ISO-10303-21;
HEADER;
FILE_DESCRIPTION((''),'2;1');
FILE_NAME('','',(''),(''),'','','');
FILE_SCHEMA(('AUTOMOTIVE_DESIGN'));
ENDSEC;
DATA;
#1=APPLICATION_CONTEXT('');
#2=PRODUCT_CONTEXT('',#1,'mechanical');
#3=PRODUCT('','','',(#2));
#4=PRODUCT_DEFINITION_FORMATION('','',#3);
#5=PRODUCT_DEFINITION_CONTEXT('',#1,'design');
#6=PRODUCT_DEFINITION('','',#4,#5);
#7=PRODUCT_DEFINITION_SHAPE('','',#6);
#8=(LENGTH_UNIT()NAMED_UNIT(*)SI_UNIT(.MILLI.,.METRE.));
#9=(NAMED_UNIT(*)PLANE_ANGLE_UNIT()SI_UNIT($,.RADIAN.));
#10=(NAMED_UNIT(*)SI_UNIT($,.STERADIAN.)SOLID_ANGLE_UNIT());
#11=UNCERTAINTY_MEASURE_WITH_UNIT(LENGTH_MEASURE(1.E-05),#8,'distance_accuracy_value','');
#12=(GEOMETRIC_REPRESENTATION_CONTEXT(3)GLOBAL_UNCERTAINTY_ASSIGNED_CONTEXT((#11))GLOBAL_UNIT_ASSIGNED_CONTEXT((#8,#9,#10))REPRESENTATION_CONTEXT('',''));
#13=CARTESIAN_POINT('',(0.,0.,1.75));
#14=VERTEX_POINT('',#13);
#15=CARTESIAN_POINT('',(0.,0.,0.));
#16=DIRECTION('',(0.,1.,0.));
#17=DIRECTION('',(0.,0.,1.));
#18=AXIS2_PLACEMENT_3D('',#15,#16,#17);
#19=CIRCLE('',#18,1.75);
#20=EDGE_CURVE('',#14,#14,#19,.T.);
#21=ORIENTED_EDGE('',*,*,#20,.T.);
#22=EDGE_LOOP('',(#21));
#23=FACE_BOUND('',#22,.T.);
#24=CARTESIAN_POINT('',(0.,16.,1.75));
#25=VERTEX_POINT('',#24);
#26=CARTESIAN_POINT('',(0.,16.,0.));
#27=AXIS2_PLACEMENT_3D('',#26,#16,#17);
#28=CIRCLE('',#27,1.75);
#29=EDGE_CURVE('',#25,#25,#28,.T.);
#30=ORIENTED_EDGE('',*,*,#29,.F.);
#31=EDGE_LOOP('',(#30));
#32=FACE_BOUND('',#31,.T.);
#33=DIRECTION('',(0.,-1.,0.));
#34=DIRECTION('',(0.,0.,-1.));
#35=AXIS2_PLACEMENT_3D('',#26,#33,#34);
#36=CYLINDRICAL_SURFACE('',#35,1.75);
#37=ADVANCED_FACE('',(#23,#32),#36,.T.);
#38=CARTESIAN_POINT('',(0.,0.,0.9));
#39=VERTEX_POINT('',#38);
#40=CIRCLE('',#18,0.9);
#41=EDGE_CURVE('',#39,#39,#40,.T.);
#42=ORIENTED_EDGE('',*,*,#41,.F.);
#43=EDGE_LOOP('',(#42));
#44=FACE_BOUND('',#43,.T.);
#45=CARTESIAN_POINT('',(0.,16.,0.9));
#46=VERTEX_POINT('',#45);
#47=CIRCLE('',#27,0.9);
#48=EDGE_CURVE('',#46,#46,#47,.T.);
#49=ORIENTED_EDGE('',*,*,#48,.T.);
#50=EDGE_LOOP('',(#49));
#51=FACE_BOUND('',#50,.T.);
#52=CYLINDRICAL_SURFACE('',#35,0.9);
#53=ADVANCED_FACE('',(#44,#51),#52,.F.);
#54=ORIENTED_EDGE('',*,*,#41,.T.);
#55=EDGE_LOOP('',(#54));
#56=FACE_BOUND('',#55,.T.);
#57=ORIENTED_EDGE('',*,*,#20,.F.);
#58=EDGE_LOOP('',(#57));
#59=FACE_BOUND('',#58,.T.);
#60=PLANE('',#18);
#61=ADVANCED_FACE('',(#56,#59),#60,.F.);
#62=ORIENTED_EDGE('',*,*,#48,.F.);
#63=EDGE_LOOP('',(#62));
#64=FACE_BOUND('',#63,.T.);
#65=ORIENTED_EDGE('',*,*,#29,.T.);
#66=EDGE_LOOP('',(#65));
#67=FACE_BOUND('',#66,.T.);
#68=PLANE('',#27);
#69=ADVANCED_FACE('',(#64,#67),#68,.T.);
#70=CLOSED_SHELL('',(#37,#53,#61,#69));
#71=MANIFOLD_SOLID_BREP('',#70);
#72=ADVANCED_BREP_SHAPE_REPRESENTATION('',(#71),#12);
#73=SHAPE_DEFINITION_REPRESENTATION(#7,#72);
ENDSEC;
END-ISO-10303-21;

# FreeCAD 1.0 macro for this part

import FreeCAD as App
import Part
import Sketcher

doc = App.newDocument("Part")
params = doc.addObject("Spreadsheet::Sheet", "Params")
for row, (alias, value) in enumerate([
    ("sketch1_diameter", "3.5 mm"),
    ("sketch1_diameter2", "1.8 mm"),
    ("pad1_length", "16 mm"),
], start=1):
    params.set(f"A{row}", alias)
    params.set(f"B{row}", "=" + value)
    params.setAlias(f"B{row}", alias)

body = doc.addObject("PartDesign::Body", "Body")

# Sketch on XZ plane
sketch1 = doc.addObject("Sketcher::SketchObject", "Sketch")
body.addObject(sketch1)
sketch1.AttachmentSupport = (doc.XZ_Plane, [""])
sketch1.MapMode = "FlatFace"
sketch1.addGeometry(Part.Circle(App.Vector(0, 0, 0), App.Vector(0, 0, 1), 1.75), False)
sketch1.addGeometry(Part.Circle(App.Vector(0, 0, 0), App.Vector(0, 0, 1), 0.9), False)
sketch1.addConstraint(Sketcher.Constraint("Coincident", 0, 3, -1, 1))
sketch1.addConstraint(Sketcher.Constraint("Coincident", 1, 3, -1, 1))
sketch1.addConstraint(Sketcher.Constraint("Diameter", 0, 3.5))
sketch1.addConstraint(Sketcher.Constraint("Diameter", 1, 1.8))
sketch1.setExpression("Constraints[2]", "Params.sketch1_diameter")
sketch1.setExpression("Constraints[3]", "Params.sketch1_diameter2")
pad1 = doc.addObject("PartDesign::Pad", "Pad")
body.addObject(pad1)
pad1.Profile = sketch1
pad1.setExpression("Length", "Params.pad1_length")
pad1.Reversed = True

doc.recompute()
